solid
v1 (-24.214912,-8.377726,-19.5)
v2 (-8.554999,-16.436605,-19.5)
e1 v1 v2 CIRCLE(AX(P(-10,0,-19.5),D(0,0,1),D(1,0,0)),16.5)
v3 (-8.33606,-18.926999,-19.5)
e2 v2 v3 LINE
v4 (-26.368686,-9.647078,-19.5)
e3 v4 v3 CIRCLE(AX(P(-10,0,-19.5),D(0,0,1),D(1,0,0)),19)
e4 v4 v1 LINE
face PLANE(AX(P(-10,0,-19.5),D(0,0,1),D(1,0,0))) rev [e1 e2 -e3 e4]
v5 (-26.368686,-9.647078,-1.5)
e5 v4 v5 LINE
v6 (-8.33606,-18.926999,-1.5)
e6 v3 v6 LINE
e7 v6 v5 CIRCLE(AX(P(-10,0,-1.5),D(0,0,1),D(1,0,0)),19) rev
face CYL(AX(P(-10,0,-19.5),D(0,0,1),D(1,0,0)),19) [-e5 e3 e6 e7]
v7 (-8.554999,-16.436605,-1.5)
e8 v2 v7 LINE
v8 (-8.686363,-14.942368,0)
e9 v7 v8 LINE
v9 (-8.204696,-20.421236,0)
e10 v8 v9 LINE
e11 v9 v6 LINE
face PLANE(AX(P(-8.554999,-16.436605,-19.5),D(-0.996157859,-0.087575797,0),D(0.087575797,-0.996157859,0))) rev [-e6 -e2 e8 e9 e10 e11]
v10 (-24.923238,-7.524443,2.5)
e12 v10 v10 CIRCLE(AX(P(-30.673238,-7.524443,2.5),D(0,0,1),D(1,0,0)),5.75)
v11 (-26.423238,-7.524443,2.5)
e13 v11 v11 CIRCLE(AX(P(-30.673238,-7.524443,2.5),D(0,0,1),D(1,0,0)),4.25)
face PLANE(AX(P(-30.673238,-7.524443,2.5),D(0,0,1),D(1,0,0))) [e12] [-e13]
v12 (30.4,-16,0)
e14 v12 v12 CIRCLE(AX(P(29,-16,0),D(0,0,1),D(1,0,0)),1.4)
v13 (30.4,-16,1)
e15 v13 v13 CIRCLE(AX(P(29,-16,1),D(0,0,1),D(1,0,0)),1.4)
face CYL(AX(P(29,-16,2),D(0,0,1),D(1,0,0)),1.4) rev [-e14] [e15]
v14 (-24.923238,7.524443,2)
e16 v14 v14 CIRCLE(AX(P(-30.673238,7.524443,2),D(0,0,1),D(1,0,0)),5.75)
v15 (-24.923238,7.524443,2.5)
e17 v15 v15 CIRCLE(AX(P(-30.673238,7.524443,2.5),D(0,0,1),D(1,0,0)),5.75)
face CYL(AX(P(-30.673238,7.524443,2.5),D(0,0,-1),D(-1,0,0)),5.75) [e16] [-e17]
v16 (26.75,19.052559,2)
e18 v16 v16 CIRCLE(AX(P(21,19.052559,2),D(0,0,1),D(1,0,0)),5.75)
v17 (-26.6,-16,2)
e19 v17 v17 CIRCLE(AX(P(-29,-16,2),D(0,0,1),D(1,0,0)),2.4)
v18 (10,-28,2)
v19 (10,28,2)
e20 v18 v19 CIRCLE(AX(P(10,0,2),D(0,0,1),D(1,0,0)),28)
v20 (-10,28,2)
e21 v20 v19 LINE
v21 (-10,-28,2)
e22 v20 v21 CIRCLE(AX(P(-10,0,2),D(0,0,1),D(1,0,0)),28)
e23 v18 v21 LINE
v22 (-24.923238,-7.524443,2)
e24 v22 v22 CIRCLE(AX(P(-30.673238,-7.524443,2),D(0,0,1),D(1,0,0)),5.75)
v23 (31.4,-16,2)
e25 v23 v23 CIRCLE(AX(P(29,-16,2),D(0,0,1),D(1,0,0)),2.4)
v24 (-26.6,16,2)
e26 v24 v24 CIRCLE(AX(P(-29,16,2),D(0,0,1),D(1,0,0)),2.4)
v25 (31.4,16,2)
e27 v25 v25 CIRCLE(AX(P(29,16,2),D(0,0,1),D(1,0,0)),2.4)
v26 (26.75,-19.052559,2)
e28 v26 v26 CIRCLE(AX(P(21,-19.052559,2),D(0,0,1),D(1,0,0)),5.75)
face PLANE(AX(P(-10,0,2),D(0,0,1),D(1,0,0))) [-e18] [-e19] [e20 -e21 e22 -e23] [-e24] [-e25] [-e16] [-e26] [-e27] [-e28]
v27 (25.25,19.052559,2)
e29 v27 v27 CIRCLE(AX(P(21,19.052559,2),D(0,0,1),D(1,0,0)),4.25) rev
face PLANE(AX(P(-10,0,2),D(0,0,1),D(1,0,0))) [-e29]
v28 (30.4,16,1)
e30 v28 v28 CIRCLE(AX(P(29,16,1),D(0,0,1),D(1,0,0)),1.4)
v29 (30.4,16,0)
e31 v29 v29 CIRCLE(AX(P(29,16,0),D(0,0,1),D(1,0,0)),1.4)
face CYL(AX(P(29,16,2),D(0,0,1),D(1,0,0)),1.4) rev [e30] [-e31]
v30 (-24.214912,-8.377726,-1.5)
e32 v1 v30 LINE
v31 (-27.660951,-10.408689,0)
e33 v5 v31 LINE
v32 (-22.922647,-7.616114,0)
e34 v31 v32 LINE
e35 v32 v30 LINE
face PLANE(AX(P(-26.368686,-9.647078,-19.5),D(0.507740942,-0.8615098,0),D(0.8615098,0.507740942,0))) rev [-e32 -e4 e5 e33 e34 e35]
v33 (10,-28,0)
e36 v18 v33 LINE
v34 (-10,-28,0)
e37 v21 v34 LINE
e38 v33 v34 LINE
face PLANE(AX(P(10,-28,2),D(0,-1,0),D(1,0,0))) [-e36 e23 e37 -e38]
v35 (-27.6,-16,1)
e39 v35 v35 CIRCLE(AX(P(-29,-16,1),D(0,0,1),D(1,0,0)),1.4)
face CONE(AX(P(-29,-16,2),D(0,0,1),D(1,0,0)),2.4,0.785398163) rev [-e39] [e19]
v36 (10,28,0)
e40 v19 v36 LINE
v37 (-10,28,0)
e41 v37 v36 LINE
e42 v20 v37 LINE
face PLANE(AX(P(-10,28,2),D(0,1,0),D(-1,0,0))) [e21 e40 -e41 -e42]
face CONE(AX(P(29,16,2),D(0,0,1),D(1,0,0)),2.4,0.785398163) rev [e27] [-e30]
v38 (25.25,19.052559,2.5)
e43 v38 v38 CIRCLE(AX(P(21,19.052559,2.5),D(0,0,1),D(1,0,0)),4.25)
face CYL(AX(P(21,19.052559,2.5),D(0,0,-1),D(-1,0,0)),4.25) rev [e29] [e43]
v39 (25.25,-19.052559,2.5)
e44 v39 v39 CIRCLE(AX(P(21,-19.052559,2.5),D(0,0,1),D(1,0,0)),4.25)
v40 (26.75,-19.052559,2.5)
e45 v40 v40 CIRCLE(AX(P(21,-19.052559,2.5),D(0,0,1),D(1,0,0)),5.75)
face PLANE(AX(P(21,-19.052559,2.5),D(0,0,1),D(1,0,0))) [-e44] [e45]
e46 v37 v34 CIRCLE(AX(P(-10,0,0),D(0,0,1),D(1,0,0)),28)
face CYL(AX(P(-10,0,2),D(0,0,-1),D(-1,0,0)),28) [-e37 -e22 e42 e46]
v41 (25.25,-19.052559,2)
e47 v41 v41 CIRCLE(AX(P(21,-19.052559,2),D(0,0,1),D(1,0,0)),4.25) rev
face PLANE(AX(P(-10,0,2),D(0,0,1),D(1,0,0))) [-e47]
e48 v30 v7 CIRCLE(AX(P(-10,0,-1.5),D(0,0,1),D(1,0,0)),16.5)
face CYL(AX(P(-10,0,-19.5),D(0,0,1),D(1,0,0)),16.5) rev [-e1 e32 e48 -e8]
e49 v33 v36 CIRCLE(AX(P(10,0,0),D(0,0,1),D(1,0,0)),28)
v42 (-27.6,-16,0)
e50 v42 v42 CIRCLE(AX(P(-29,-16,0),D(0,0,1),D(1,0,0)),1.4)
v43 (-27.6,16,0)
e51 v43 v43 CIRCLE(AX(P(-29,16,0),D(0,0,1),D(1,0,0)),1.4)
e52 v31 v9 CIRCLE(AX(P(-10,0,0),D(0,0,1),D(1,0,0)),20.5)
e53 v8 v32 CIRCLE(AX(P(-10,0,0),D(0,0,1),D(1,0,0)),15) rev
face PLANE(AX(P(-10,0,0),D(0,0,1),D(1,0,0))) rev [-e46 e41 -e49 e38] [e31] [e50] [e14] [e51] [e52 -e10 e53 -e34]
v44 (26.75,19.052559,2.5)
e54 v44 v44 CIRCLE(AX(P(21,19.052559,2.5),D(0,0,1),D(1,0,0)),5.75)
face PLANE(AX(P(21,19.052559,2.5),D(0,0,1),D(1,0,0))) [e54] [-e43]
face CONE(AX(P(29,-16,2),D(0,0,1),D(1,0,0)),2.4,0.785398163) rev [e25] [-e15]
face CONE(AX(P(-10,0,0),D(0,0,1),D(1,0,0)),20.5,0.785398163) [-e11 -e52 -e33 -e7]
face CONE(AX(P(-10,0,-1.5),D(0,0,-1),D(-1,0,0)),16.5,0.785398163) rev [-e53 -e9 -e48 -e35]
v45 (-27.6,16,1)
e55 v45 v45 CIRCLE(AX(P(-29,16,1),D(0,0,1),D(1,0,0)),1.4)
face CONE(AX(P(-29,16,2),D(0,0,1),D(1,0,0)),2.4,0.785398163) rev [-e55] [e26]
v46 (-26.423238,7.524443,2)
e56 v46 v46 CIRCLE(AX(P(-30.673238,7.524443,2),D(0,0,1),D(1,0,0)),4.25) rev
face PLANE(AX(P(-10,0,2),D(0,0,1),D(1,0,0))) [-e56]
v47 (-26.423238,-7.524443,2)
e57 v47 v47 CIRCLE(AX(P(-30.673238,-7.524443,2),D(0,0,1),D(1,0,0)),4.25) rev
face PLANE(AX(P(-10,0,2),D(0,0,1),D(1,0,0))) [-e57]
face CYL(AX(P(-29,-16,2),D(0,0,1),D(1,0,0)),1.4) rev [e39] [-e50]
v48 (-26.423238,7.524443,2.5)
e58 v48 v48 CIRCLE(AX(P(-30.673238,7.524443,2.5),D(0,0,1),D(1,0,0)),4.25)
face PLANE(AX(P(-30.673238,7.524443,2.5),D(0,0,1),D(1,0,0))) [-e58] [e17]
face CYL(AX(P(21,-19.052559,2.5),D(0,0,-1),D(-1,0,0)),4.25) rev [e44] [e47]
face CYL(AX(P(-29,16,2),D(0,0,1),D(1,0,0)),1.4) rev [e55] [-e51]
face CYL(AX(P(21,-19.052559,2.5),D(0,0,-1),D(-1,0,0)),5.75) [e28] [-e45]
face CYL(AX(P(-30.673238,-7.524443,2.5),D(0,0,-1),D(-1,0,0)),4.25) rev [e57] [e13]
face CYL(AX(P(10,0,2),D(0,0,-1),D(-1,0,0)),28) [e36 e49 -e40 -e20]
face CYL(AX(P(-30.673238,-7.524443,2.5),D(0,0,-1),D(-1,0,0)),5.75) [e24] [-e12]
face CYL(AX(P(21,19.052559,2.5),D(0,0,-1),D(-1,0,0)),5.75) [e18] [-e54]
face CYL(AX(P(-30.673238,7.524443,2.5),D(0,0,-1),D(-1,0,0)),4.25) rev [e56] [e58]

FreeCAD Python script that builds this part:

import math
import FreeCAD as App
import Part
import Sketcher
from FreeCAD import Vector


def edges_at(feature, points):
    """Names of the edges that pass closest to the given points."""
    edges = feature.Shape.Edges
    near = lambda p: min(range(len(edges)), key=lambda i: edges[i].distToShape(Part.Vertex(*p))[0])
    return sorted({f"Edge{near(p) + 1}" for p in points})

doc = App.newDocument("Part")
body = doc.addObject("PartDesign::Body", "Body")

sketch1 = body.newObject("Sketcher::SketchObject", "Sketch")
sketch1.AttachmentSupport = (doc.getObject("XY_Plane"), [""])
sketch1.MapMode = "FlatFace"
sketch1.addGeometry(Part.LineSegment(Vector(-10, -28, 0), Vector(10, -28, 0)), False)
sketch1.addGeometry(Part.ArcOfCircle(Part.Circle(Vector(10, 0, 0), Vector(0, 0, 1), 28), math.radians(-90), math.radians(90)), False)
sketch1.addGeometry(Part.LineSegment(Vector(10, 28, 0), Vector(-10, 28, 0)), False)
sketch1.addGeometry(Part.ArcOfCircle(Part.Circle(Vector(-10, 0, 0), Vector(0, 0, 1), 28), math.radians(90), math.radians(270)), False)
sketch1.addConstraint(Sketcher.Constraint("Tangent", 0, 2, 1, 1))
sketch1.addConstraint(Sketcher.Constraint("Tangent", 1, 2, 2, 1))
sketch1.addConstraint(Sketcher.Constraint("Tangent", 2, 2, 3, 1))
sketch1.addConstraint(Sketcher.Constraint("Tangent", 3, 2, 0, 1))
sketch1.addConstraint(Sketcher.Constraint("Horizontal", 0))
sketch1.addConstraint(Sketcher.Constraint("Horizontal", 2))
sketch1.addConstraint(Sketcher.Constraint("Symmetric", 1, 3, 3, 3, -1, 1))
sketch1.addConstraint(Sketcher.Constraint("Radius", 1, 28.0))
sketch1.addConstraint(Sketcher.Constraint("DistanceX", 0, 1, 0, 2, 20.0))
pad1 = body.newObject("PartDesign::Pad", "Pad")
pad1.Profile = sketch1
pad1.Length = 2

sketch2 = body.newObject("Sketcher::SketchObject", "Sketch001")
sketch2.AttachmentSupport = (doc.getObject("XY_Plane"), [""])
sketch2.MapMode = "FlatFace"
sketch2.AttachmentOffset = App.Placement(Vector(0, 0, 2), App.Rotation())
sketch2.addGeometry(Part.Circle(Vector(-29, 16, 0), Vector(0, 0, 1), 1.4), False)
sketch2.addGeometry(Part.Circle(Vector(-29, -16, 0), Vector(0, 0, 1), 1.4), False)
sketch2.addGeometry(Part.Circle(Vector(29, 16, 0), Vector(0, 0, 1), 1.4), False)
sketch2.addGeometry(Part.Circle(Vector(29, -16, 0), Vector(0, 0, 1), 1.4), False)
sketch2.addConstraint(Sketcher.Constraint("Equal", 0, 1))
sketch2.addConstraint(Sketcher.Constraint("Equal", 1, 2))
sketch2.addConstraint(Sketcher.Constraint("Equal", 2, 3))
sketch2.addConstraint(Sketcher.Constraint("Symmetric", 1, 3, 2, 3, -1, 1))
sketch2.addConstraint(Sketcher.Constraint("Symmetric", 0, 3, 3, 3, -1, 1))
sketch2.addConstraint(Sketcher.Constraint("Symmetric", 0, 3, 2, 3, -2))
sketch2.addConstraint(Sketcher.Constraint("Diameter", 0, 2.8))
sketch2.addConstraint(Sketcher.Constraint("DistanceX", 0, 3, -1, 1, 29.0))
sketch2.addConstraint(Sketcher.Constraint("DistanceY", -1, 1, 0, 3, 16.0))
doc.recompute()
hole = body.newObject("PartDesign::Hole", "Hole")
hole.Profile = sketch2
hole.ThreadType = "None"
hole.Diameter = 2.8
hole.DepthType = "Dimension"
hole.Depth = 10.1
hole.DrillPoint = "Angled"
hole.DrillPointAngle = 118
hole.HoleCutType = "Countersink"
hole.HoleCutDiameter = 4.8
hole.HoleCutCountersinkAngle = 90

sketch3 = body.newObject("Sketcher::SketchObject", "Sketch002")
sketch3.AttachmentSupport = (doc.getObject("XY_Plane"), [""])
sketch3.MapMode = "FlatFace"
sketch3.AttachmentOffset = App.Placement(Vector(0, 0, 2), App.Rotation())
sketch3.addGeometry(Part.Circle(Vector(-30.7, 7.5, 0), Vector(0, 0, 1), 5.8), False)
sketch3.addGeometry(Part.Circle(Vector(-30.7, 7.5, 0), Vector(0, 0, 1), 4.2), False)
sketch3.addGeometry(Part.Circle(Vector(-30.7, -7.5, 0), Vector(0, 0, 1), 5.8), False)
sketch3.addGeometry(Part.Circle(Vector(-30.7, -7.5, 0), Vector(0, 0, 1), 4.2), False)
sketch3.addGeometry(Part.Circle(Vector(21, -19.1, 0), Vector(0, 0, 1), 5.8), False)
sketch3.addGeometry(Part.Circle(Vector(21, -19.1, 0), Vector(0, 0, 1), 4.2), False)
sketch3.addGeometry(Part.Circle(Vector(21, 19.1, 0), Vector(0, 0, 1), 5.8), False)
sketch3.addGeometry(Part.Circle(Vector(21, 19.1, 0), Vector(0, 0, 1), 4.2), False)
sketch3.addConstraint(Sketcher.Constraint("Coincident", 1, 3, 0, 3))
sketch3.addConstraint(Sketcher.Constraint("Coincident", 3, 3, 2, 3))
sketch3.addConstraint(Sketcher.Constraint("Coincident", 5, 3, 4, 3))
sketch3.addConstraint(Sketcher.Constraint("Coincident", 7, 3, 6, 3))
sketch3.addConstraint(Sketcher.Constraint("Equal", 0, 2))
sketch3.addConstraint(Sketcher.Constraint("Equal", 1, 3))
sketch3.addConstraint(Sketcher.Constraint("Equal", 2, 4))
sketch3.addConstraint(Sketcher.Constraint("Equal", 3, 5))
sketch3.addConstraint(Sketcher.Constraint("Equal", 4, 6))
sketch3.addConstraint(Sketcher.Constraint("Equal", 5, 7))
sketch3.addConstraint(Sketcher.Constraint("Symmetric", 0, 3, 2, 3, -1))
sketch3.addConstraint(Sketcher.Constraint("Symmetric", 4, 3, 6, 3, -1))
sketch3.addConstraint(Sketcher.Constraint("Diameter", 0, 11.5))
sketch3.addConstraint(Sketcher.Constraint("Diameter", 1, 8.5))
sketch3.addConstraint(Sketcher.Constraint("DistanceX", -1, 1, 4, 3, 21.0))
sketch3.addConstraint(Sketcher.Constraint("DistanceY", 4, 3, -1, 1, 19.052559))
sketch3.addConstraint(Sketcher.Constraint("DistanceX", 0, 3, -1, 1, 30.673238))
sketch3.addConstraint(Sketcher.Constraint("DistanceY", -1, 1, 0, 3, 7.524443))
pad2 = body.newObject("PartDesign::Pad", "Pad001")
pad2.Profile = sketch3
pad2.Length = 0.5

sketch4 = body.newObject("Sketcher::SketchObject", "Sketch003")
sketch4.AttachmentSupport = (doc.getObject("XY_Plane"), [""])
sketch4.MapMode = "FlatFace"
sketch4.AttachmentOffset = App.Placement(Vector(0, 0, 2), App.Rotation())
sketch4.addGeometry(Part.ArcOfCircle(Part.Circle(Vector(-10, 0, 0), Vector(0, 0, 1), 16.5), math.radians(-149), math.radians(-85)), False)
sketch4.addGeometry(Part.LineSegment(Vector(-24.2, -8.4, 0), Vector(-26.4, -9.6, 0)), False)
sketch4.addGeometry(Part.ArcOfCircle(Part.Circle(Vector(-10, 0, 0), Vector(0, 0, 1), 19), math.radians(-149), math.radians(-85)), False)
sketch4.addGeometry(Part.LineSegment(Vector(-8.3, -18.9, 0), Vector(-8.6, -16.4, 0)), False)
sketch4.addConstraint(Sketcher.Constraint("Coincident", 0, 1, 1, 1))
sketch4.addConstraint(Sketcher.Constraint("Coincident", 1, 2, 2, 1))
sketch4.addConstraint(Sketcher.Constraint("Coincident", 2, 2, 3, 1))
sketch4.addConstraint(Sketcher.Constraint("Coincident", 3, 2, 0, 2))
sketch4.addConstraint(Sketcher.Constraint("Coincident", 2, 3, 0, 3))
sketch4.addConstraint(Sketcher.Constraint("PointOnObject", 0, 3, -1))
sketch4.addConstraint(Sketcher.Constraint("Radius", 2, 19.0))
sketch4.addConstraint(Sketcher.Constraint("Radius", 0, 16.5))
sketch4.addConstraint(Sketcher.Constraint("DistanceX", 0, 3, -1, 1, 10.0))
sketch4.addConstraint(Sketcher.Constraint("DistanceY", 2, 2, -1, 1, 18.926999))
sketch4.addConstraint(Sketcher.Constraint("DistanceX", 3, 2, -1, 1, 8.554999))
sketch4.addConstraint(Sketcher.Constraint("DistanceX", 0, 1, -1, 1, 24.214912))
sketch4.addConstraint(Sketcher.Constraint("DistanceY", 2, 2, 1, 2, 9.279921))
pad3 = body.newObject("PartDesign::Pad", "Pad002")
pad3.Profile = sketch4
pad3.Length = 21.5
pad3.Reversed = True
doc.recompute()

chamfer = body.newObject("PartDesign::Chamfer", "Chamfer")
chamfer.Base = (pad3, edges_at(pad3, [(-17.55, -14.671, 0), (-18.694, -16.894, 0)]))
chamfer.Size = 1.5

doc.recompute()
